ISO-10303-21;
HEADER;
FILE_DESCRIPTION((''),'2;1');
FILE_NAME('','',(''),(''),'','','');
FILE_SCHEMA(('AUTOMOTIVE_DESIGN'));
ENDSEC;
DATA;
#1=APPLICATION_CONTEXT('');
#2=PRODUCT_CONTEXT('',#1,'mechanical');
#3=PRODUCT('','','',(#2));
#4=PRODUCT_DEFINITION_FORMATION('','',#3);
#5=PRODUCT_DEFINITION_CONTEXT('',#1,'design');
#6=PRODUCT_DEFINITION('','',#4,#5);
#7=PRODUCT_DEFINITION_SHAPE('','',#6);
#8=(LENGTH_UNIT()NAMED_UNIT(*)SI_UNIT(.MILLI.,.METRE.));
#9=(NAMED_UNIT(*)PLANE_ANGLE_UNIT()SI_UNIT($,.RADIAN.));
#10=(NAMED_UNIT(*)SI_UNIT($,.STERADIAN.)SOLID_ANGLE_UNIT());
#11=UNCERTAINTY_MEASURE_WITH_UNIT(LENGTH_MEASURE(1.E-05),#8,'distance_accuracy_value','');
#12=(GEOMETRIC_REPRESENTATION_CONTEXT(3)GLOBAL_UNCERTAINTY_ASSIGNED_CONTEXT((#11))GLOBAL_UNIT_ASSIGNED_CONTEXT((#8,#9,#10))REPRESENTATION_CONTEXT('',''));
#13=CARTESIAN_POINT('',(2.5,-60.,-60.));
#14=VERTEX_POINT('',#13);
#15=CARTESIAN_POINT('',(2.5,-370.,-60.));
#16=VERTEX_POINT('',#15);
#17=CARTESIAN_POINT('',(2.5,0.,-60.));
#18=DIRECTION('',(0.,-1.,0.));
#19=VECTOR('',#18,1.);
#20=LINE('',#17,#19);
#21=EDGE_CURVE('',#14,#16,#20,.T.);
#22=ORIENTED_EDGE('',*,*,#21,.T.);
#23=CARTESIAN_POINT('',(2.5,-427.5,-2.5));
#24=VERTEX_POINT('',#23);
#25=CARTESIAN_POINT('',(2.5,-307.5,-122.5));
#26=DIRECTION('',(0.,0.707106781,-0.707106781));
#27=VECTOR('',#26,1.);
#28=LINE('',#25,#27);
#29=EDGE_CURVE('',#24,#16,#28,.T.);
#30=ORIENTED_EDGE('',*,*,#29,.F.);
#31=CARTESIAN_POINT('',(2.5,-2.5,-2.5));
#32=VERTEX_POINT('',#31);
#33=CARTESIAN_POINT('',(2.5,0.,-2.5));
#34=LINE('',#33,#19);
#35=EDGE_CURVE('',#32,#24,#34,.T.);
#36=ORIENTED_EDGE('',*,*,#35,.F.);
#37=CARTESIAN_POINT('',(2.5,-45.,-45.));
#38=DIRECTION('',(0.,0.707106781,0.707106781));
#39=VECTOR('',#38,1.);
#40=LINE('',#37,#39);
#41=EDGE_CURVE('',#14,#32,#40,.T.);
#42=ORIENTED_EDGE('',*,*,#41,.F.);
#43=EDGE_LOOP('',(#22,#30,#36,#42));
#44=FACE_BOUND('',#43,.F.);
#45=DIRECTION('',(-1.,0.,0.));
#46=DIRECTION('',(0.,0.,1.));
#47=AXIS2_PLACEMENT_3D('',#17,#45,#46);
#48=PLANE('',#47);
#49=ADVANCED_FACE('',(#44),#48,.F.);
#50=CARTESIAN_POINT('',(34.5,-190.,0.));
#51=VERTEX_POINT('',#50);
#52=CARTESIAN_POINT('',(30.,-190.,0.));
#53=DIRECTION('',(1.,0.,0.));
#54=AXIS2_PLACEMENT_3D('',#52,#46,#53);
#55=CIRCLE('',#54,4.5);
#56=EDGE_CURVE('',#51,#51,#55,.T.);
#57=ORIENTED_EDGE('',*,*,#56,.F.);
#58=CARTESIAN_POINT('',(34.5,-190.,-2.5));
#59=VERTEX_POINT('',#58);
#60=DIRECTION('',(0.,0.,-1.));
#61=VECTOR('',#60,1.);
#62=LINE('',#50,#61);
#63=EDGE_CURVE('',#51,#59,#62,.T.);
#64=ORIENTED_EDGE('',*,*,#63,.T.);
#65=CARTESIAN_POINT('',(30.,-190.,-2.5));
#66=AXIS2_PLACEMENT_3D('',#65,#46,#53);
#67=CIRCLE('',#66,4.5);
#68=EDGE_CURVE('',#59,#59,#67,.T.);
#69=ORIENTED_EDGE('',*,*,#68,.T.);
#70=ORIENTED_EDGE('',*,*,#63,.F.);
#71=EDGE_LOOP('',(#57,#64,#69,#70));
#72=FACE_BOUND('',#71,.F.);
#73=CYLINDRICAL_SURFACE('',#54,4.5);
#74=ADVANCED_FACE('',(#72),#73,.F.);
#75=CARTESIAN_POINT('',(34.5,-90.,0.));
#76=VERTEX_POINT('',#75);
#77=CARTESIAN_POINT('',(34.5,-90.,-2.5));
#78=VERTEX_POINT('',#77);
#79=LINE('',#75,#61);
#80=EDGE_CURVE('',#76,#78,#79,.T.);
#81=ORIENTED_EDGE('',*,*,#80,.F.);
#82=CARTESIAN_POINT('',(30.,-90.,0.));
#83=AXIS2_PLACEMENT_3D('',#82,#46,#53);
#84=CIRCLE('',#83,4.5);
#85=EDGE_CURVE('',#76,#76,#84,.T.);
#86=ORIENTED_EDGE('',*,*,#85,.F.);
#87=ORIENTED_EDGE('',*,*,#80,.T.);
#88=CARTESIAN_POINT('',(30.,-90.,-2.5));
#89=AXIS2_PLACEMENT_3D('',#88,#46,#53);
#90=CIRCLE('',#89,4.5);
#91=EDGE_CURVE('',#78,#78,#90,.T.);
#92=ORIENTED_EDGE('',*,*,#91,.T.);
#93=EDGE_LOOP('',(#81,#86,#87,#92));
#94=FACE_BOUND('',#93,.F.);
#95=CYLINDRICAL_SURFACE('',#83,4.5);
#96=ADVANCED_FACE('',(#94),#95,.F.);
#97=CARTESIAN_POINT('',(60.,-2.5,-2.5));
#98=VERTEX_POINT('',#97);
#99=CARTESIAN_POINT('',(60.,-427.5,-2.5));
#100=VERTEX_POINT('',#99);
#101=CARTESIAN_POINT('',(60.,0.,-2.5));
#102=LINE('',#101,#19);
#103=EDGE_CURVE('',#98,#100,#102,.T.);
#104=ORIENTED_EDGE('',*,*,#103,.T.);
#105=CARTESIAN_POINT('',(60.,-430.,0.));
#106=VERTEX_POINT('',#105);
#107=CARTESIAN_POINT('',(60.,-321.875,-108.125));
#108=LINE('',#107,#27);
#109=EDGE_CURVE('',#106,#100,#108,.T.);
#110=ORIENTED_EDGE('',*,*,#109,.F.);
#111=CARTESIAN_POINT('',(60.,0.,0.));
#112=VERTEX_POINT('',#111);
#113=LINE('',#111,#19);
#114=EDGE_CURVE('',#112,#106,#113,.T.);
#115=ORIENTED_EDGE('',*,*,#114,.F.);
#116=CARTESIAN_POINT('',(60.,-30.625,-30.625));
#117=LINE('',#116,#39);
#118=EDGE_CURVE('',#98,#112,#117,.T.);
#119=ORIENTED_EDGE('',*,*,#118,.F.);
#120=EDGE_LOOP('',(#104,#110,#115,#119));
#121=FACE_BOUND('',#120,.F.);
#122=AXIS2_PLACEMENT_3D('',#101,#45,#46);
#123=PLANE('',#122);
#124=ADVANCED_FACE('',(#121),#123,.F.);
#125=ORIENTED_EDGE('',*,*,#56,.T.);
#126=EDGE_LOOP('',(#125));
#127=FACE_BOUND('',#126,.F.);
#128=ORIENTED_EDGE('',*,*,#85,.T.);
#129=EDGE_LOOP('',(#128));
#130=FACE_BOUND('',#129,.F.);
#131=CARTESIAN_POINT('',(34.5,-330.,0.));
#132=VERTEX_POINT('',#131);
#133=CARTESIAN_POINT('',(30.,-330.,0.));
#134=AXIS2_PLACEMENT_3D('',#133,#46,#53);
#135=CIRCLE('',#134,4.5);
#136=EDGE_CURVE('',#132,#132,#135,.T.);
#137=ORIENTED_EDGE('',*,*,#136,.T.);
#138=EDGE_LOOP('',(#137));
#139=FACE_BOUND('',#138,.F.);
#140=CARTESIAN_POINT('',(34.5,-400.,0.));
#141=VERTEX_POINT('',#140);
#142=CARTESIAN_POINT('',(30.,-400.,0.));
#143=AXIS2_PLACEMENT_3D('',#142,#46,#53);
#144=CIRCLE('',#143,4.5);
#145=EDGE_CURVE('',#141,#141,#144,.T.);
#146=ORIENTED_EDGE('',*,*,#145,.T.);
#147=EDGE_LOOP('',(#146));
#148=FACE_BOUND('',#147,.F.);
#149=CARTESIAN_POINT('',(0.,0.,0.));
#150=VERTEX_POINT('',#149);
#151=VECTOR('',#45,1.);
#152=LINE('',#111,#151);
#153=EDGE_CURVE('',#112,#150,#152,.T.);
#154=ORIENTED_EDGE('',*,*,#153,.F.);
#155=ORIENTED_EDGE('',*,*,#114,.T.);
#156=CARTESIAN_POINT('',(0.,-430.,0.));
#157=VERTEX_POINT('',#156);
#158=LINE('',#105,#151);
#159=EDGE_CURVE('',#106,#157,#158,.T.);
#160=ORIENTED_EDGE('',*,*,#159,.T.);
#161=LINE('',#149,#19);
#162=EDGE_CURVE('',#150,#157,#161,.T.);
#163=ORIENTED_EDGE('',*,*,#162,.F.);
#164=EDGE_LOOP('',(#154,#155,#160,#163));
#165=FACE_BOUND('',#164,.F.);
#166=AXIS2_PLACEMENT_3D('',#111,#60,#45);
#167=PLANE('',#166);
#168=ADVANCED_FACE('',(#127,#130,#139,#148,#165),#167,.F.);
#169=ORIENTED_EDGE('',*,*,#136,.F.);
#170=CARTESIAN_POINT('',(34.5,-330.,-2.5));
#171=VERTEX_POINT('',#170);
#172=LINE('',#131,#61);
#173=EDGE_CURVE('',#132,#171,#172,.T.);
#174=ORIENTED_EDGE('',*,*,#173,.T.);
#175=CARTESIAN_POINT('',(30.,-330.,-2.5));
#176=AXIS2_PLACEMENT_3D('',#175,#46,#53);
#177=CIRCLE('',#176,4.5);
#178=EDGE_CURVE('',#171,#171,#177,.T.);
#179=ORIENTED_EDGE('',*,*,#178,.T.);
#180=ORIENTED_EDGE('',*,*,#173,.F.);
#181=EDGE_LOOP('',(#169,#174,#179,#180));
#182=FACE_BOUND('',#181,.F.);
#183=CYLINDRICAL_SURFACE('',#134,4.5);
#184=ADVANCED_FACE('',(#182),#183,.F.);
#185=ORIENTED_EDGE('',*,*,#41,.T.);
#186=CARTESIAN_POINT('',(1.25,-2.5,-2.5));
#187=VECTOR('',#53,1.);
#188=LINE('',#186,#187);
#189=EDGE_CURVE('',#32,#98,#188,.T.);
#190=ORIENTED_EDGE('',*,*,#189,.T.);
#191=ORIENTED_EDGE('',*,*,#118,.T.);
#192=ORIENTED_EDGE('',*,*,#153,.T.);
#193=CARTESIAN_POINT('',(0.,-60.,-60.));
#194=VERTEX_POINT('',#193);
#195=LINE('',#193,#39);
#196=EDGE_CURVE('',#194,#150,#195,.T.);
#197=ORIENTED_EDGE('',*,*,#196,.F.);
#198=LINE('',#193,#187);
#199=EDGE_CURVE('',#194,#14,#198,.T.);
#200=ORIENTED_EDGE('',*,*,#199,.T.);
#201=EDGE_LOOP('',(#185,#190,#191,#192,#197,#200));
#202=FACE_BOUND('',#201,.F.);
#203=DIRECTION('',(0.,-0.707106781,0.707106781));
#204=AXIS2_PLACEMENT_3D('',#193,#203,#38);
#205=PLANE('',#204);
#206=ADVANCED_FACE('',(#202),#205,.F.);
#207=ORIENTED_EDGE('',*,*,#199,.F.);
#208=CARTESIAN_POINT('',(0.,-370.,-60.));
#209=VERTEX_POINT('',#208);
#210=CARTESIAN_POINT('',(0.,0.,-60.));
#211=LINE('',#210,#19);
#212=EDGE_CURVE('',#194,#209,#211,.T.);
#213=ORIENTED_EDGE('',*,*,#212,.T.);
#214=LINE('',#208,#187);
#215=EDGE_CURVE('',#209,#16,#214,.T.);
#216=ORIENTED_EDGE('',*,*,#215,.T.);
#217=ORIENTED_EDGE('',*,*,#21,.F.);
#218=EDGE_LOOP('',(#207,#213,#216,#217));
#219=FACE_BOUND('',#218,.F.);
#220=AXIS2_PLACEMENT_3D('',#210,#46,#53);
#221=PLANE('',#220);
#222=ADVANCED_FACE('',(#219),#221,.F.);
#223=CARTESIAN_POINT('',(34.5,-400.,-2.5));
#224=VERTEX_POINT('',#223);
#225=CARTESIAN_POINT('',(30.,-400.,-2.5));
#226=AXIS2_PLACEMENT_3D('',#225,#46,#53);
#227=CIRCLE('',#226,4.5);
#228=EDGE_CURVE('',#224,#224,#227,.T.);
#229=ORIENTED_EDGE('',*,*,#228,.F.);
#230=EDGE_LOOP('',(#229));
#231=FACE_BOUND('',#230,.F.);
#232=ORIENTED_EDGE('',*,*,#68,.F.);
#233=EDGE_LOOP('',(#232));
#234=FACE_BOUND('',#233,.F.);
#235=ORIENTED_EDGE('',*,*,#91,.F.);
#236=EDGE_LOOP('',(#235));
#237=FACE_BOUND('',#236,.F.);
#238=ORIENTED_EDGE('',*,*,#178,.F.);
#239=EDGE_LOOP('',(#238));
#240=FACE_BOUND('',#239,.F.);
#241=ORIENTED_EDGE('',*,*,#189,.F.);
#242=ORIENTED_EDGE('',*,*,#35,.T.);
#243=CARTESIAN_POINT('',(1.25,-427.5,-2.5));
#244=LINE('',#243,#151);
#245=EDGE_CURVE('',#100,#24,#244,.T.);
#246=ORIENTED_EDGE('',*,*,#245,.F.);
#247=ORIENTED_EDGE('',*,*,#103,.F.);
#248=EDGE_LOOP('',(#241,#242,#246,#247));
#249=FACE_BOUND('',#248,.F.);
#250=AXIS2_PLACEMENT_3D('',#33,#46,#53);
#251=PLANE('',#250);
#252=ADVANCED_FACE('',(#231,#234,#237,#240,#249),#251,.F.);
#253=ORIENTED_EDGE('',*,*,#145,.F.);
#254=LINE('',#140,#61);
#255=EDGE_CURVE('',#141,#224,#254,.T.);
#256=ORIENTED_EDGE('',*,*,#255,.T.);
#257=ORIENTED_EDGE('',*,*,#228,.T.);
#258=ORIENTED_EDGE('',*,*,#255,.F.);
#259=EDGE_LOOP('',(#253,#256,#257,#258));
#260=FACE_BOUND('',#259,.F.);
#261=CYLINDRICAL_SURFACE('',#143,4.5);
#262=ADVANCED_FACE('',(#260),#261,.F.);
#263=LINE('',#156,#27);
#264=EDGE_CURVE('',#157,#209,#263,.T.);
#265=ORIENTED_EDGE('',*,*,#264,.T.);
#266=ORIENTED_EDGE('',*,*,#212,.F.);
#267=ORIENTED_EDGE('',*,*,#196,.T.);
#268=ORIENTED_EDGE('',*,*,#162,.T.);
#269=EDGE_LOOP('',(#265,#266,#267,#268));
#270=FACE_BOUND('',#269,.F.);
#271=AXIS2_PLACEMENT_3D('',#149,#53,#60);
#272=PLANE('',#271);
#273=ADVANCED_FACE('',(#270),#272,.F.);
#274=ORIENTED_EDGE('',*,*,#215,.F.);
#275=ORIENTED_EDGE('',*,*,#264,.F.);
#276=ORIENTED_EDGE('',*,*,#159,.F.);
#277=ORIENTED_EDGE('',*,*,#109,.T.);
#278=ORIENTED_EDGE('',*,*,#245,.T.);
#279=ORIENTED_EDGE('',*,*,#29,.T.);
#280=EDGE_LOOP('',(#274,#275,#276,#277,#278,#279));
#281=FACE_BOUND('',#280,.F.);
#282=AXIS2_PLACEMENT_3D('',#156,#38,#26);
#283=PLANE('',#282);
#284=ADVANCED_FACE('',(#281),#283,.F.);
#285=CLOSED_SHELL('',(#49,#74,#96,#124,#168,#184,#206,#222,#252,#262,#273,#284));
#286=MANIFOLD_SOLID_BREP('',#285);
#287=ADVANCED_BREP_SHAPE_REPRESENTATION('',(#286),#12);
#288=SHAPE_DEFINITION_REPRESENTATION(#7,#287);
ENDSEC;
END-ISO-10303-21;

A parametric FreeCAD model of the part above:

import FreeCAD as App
import Part
import Sketcher
from FreeCAD import Vector

doc = App.newDocument("Part")
params = doc.addObject("Spreadsheet::Sheet", "Params")
for row, (alias, value) in enumerate([
    ("sketch1_width", "60 mm"),
    ("sketch1_width2", "2.5 mm"),
    ("pad1_length", "430 mm"),
    ("sketch2_width", "60 mm"),
    ("sketch3_diameter", "9 mm"),
], start=1):
    params.set(f"A{row}", alias)
    params.set(f"B{row}", "=" + value)
    params.setAlias(f"B{row}", alias)

body = doc.addObject("PartDesign::Body", "Body")

# Sketch on XZ plane
sketch1 = body.newObject("Sketcher::SketchObject", "Sketch")
sketch1.AttachmentSupport = (doc.getObject("XZ_Plane"), [""])
sketch1.MapMode = "FlatFace"
sketch1.addGeometry([
    Part.LineSegment(Vector(60, 0, 0), Vector(0, 0, 0)),  # 0
    Part.LineSegment(Vector(0, 0, 0), Vector(0, -60, 0)),  # 1
    Part.LineSegment(Vector(0, -60, 0), Vector(2.5, -60, 0)),  # 2
    Part.LineSegment(Vector(2.5, -60, 0), Vector(2.5, -2.5, 0)),  # 3
    Part.LineSegment(Vector(2.5, -2.5, 0), Vector(60, -2.5, 0)),  # 4
    Part.LineSegment(Vector(60, -2.5, 0), Vector(60, 0, 0)),  # 5
], False)
sketch1.addConstraint([
    Sketcher.Constraint("Coincident", 0, 2, 1, 1),
    Sketcher.Constraint("Coincident", 1, 2, 2, 1),
    Sketcher.Constraint("Coincident", 2, 2, 3, 1),
    Sketcher.Constraint("Coincident", 3, 2, 4, 1),
    Sketcher.Constraint("Coincident", 4, 2, 5, 1),
    Sketcher.Constraint("Coincident", 5, 2, 0, 1),
    Sketcher.Constraint("Horizontal", 0),
    Sketcher.Constraint("Vertical", 1),
    Sketcher.Constraint("Horizontal", 2),
    Sketcher.Constraint("Vertical", 3),
    Sketcher.Constraint("Horizontal", 4),
    Sketcher.Constraint("Vertical", 5),
    Sketcher.Constraint("Coincident", 0, 2, -1, 1),
    Sketcher.Constraint("Equal", 0, 1),
    Sketcher.Constraint("Equal", 4, 3),
    Sketcher.Constraint("DistanceX", 0, 2, 0, 1, 60.0),
    Sketcher.Constraint("DistanceX", 2, 1, 2, 2, 2.5),
])
sketch1.setExpression("Constraints[15]", "Params.sketch1_width")
sketch1.setExpression("Constraints[16]", "Params.sketch1_width2")
pad1 = body.newObject("PartDesign::Pad", "Pad")
pad1.Profile = sketch1
pad1.setExpression("Length", "Params.pad1_length")

# Sketch on YZ plane
sketch2 = body.newObject("Sketcher::SketchObject", "Sketch001")
sketch2.AttachmentSupport = (doc.getObject("YZ_Plane"), [""])
sketch2.MapMode = "FlatFace"
sketch2.addGeometry([
    Part.LineSegment(Vector(0, 0, 0), Vector(0, -60, 0)),  # 0
    Part.LineSegment(Vector(0, -60, 0), Vector(-60, -60, 0)),  # 1
    Part.LineSegment(Vector(-60, -60, 0), Vector(0, 0, 0)),  # 2
    Part.LineSegment(Vector(-370, -60, 0), Vector(-430, -60, 0)),  # 3
    Part.LineSegment(Vector(-430, -60, 0), Vector(-430, 0, 0)),  # 4
    Part.LineSegment(Vector(-430, 0, 0), Vector(-370, -60, 0)),  # 5
], False)
sketch2.addConstraint([
    Sketcher.Constraint("Coincident", 0, 2, 1, 1),
    Sketcher.Constraint("Coincident", 1, 2, 2, 1),
    Sketcher.Constraint("Coincident", 2, 2, 0, 1),
    Sketcher.Constraint("Coincident", 3, 2, 4, 1),
    Sketcher.Constraint("Coincident", 4, 2, 5, 1),
    Sketcher.Constraint("Coincident", 5, 2, 3, 1),
    Sketcher.Constraint("Vertical", 0),
    Sketcher.Constraint("Horizontal", 1),
    Sketcher.Constraint("Horizontal", 3),
    Sketcher.Constraint("Vertical", 4),
    Sketcher.Constraint("Coincident", 2, 2, -1, 1),
    Sketcher.Constraint("PointOnObject", 4, 2, -1),
    Sketcher.Constraint("Perpendicular", 2, 5),
    Sketcher.Constraint("Horizontal", 1, 2, 3, 2),
    Sketcher.Constraint("Equal", 1, 3),
    Sketcher.Constraint("DistanceX", 1, 2, 1, 1, 60.0),
    Sketcher.Constraint("DistanceX", 3, 2, -1, 1, 430.0),
])
sketch2.setExpression("Constraints[15]", "Params.sketch2_width")
pocket1 = body.newObject("PartDesign::Pocket", "Pocket")
pocket1.Profile = sketch2
pocket1.Type = "ThroughAll"
pocket1.Reversed = True

# Sketch on XY plane
sketch3 = body.newObject("Sketcher::SketchObject", "Sketch002")
sketch3.AttachmentSupport = (doc.getObject("XY_Plane"), [""])
sketch3.MapMode = "FlatFace"
sketch3.addGeometry([
    Part.Circle(Vector(30, -90, 0), Vector(0, 0, 1), 4.5),
    Part.Circle(Vector(30, -190, 0), Vector(0, 0, 1), 4.5),
    Part.Circle(Vector(30, -330, 0), Vector(0, 0, 1), 4.5),
    Part.Circle(Vector(30, -400, 0), Vector(0, 0, 1), 4.5),
], False)
sketch3.addConstraint([
    Sketcher.Constraint("Equal", 0, 1),
    Sketcher.Constraint("Equal", 1, 2),
    Sketcher.Constraint("Equal", 2, 3),
    Sketcher.Constraint("Vertical", 0, 3, 1, 3),
    Sketcher.Constraint("Vertical", 1, 3, 2, 3),
    Sketcher.Constraint("Vertical", 2, 3, 3, 3),
    Sketcher.Constraint("Diameter", 0, 9.0),
    Sketcher.Constraint("DistanceX", -1, 1, 0, 3, 30.0),
    Sketcher.Constraint("DistanceY", 0, 3, -1, 1, 90.0),
    Sketcher.Constraint("DistanceY", 1, 3, -1, 1, 190.0),
    Sketcher.Constraint("DistanceY", 2, 3, -1, 1, 330.0),
    Sketcher.Constraint("DistanceY", 3, 3, -1, 1, 400.0),
])
sketch3.setExpression("Constraints[6]", "Params.sketch3_diameter")
pocket2 = body.newObject("PartDesign::Pocket", "Pocket001")
pocket2.Profile = sketch3
pocket2.Type = "ThroughAll"

doc.recompute()
